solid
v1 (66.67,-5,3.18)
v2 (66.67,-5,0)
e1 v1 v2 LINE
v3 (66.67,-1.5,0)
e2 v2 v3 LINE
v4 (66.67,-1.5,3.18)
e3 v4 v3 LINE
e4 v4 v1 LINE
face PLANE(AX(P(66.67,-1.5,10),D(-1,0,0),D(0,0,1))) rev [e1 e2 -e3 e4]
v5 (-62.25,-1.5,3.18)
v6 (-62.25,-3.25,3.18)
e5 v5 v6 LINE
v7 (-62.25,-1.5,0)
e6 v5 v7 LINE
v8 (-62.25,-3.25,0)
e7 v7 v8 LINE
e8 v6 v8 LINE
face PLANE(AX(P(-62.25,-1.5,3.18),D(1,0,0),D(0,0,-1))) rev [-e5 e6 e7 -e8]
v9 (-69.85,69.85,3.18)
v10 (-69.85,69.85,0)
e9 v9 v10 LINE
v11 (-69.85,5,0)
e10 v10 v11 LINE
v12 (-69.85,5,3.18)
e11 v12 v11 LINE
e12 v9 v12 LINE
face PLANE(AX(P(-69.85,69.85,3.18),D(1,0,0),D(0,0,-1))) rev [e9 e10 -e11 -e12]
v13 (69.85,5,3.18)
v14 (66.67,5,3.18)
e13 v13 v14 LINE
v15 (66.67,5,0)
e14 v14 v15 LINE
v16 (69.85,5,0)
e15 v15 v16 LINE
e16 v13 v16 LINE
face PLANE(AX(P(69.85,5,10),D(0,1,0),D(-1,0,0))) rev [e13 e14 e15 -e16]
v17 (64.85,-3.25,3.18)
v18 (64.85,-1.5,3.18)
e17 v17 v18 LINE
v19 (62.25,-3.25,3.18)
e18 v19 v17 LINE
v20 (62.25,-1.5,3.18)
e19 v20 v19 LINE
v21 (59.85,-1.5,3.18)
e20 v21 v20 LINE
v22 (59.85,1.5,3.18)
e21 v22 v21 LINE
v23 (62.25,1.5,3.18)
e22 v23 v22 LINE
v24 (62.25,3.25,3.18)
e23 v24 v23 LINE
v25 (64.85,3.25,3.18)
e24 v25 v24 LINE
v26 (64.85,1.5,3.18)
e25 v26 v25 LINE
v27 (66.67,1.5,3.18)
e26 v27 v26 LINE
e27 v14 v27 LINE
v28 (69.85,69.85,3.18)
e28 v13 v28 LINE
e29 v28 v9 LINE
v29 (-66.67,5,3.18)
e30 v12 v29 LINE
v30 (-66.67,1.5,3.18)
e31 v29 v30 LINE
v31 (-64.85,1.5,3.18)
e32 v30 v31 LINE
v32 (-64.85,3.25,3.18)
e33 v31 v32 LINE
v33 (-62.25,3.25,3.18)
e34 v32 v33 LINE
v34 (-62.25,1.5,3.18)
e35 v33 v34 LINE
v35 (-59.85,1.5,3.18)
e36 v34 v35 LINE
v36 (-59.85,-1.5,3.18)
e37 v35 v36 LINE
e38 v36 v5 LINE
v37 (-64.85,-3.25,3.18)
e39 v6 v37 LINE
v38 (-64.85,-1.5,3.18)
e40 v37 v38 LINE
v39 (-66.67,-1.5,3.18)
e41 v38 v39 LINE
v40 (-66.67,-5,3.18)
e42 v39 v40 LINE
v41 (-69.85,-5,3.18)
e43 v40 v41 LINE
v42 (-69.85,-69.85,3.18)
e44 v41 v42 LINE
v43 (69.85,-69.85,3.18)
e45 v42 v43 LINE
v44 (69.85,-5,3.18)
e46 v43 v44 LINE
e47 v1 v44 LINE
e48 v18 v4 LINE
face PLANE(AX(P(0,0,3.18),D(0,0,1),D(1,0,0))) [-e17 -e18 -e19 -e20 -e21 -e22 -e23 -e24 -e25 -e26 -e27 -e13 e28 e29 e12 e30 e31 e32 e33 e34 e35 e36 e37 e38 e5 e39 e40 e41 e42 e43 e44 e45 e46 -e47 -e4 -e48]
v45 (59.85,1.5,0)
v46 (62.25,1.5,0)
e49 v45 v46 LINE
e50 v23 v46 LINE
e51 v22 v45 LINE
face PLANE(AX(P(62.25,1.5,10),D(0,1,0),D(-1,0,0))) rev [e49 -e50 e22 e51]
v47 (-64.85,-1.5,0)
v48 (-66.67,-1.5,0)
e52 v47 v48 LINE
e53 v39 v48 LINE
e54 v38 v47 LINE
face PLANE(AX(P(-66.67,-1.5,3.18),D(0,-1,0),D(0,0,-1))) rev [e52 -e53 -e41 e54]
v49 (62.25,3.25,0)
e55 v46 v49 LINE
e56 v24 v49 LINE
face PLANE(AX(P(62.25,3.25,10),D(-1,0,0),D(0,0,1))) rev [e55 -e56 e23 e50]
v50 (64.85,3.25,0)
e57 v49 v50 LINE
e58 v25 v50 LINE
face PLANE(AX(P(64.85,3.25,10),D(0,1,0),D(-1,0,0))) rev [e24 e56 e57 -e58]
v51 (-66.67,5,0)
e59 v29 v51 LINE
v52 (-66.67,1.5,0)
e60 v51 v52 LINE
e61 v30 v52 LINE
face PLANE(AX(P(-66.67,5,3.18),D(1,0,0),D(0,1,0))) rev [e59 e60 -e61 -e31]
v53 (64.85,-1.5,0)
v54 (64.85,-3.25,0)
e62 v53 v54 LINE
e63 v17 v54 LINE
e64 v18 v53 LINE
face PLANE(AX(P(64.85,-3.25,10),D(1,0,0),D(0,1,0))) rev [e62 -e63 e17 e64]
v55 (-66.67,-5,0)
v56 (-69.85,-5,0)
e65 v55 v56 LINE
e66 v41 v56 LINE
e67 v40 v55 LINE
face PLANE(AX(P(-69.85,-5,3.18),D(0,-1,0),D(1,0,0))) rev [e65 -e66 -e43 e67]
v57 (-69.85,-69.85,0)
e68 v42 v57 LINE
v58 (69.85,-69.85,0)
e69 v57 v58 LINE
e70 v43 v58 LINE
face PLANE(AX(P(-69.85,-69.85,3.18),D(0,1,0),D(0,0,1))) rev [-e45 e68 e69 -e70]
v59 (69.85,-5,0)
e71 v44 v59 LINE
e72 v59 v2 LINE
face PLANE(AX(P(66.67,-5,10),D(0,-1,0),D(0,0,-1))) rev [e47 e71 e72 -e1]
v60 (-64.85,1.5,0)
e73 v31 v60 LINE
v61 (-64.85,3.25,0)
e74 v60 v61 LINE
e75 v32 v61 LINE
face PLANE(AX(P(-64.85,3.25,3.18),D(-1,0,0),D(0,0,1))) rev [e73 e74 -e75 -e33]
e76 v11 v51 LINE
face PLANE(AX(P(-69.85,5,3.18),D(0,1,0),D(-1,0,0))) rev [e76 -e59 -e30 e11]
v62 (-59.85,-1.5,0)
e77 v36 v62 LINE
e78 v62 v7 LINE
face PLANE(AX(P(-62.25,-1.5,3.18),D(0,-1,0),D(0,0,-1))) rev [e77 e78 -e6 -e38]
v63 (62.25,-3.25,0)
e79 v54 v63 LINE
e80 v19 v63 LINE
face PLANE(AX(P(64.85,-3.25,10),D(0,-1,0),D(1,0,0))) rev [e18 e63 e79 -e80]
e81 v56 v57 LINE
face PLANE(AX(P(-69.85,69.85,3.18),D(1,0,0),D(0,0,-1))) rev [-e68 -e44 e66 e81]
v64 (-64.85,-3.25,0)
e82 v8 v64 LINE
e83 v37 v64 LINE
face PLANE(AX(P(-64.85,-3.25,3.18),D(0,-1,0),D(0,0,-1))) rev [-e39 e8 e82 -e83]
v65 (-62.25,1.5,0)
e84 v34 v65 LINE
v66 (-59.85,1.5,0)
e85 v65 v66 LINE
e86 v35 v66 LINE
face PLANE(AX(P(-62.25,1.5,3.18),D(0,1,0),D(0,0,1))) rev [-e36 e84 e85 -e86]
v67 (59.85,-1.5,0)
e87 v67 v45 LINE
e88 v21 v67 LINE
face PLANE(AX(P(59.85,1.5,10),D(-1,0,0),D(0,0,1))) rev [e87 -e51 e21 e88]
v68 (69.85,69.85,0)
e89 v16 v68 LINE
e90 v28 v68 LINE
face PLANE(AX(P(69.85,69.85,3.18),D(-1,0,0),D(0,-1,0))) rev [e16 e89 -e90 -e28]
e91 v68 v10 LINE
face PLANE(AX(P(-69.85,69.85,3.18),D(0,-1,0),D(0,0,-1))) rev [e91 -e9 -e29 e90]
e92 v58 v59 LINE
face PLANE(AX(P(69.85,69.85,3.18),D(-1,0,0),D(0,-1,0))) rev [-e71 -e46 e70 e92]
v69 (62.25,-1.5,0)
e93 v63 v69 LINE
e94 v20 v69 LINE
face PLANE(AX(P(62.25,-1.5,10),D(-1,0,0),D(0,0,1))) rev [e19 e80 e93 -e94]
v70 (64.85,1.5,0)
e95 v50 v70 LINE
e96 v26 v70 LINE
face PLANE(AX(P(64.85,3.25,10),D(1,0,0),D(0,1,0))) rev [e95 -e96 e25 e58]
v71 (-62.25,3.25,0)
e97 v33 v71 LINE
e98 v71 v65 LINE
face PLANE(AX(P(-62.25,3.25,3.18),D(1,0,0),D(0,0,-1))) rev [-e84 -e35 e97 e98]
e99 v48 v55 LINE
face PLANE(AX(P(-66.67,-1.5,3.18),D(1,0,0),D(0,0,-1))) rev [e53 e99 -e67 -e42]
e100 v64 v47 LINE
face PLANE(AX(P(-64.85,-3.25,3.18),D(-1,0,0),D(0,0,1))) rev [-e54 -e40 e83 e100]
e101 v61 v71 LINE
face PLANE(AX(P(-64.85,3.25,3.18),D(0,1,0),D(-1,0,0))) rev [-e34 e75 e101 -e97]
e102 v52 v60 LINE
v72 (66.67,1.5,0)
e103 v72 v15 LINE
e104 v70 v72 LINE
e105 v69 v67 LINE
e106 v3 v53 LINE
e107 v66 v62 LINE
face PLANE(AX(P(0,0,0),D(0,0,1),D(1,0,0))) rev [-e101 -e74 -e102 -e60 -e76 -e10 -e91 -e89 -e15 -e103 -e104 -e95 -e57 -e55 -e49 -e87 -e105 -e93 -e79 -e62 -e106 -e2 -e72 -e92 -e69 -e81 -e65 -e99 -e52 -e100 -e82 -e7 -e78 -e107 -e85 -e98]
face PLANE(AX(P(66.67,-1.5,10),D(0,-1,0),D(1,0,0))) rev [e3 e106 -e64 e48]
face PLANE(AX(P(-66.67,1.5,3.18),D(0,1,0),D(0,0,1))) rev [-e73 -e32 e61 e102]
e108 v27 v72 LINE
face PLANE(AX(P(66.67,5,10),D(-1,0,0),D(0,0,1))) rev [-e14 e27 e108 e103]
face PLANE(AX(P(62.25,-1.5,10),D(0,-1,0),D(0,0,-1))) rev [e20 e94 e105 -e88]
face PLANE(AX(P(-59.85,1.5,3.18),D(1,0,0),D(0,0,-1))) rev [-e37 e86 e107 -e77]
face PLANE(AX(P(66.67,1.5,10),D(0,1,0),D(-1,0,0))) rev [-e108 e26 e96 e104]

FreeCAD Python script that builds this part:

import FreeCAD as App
import Part
import Sketcher
Q = App.Units.Quantity

doc = App.newDocument("Part")
body = doc.addObject("PartDesign::Body", "Body")

sketch1 = body.newObject("Sketcher::SketchObject", "Sketch")
sketch1.AttachmentSupport = (doc.getObject("XY_Plane"), [""])
sketch1.MapMode = "FlatFace"
sketch1.addGeometry(Part.LineSegment(App.Vector(-69.85, 69.85, 0), App.Vector(-69.85, -69.85, 0)), False)
sketch1.addGeometry(Part.LineSegment(App.Vector(-69.85, -69.85, 0), App.Vector(69.85, -69.85, 0)), False)
sketch1.addGeometry(Part.LineSegment(App.Vector(69.85, -69.85, 0), App.Vector(69.85, 69.85, 0)), False)
sketch1.addGeometry(Part.LineSegment(App.Vector(69.85, 69.85, 0), App.Vector(-69.85, 69.85, 0)), False)
sketch1.addConstraint(Sketcher.Constraint("Coincident", 0, 2, 1, 1))
sketch1.addConstraint(Sketcher.Constraint("Coincident", 1, 2, 2, 1))
sketch1.addConstraint(Sketcher.Constraint("Coincident", 2, 2, 3, 1))
sketch1.addConstraint(Sketcher.Constraint("Coincident", 3, 2, 0, 1))
sketch1.addConstraint(Sketcher.Constraint("Vertical", 0))
sketch1.addConstraint(Sketcher.Constraint("Horizontal", 1))
sketch1.addConstraint(Sketcher.Constraint("Vertical", 2))
sketch1.addConstraint(Sketcher.Constraint("Horizontal", 3))
sketch1.addConstraint(Sketcher.Constraint("Symmetric", 0, 2, 2, 2, -1, 1))
sketch1.addConstraint(Sketcher.Constraint("Equal", 3, 0))
sketch1.addConstraint(Sketcher.Constraint("DistanceX", 1, 1, 1, 2, Q("139.7 mm")))
pad1 = body.newObject("PartDesign::Pad", "Pad")
pad1.Profile = sketch1
pad1.Length = 3.18

sketch2 = body.newObject("Sketcher::SketchObject", "Sketch001")
sketch2.AttachmentSupport = (doc.getObject("XY_Plane"), [""])
sketch2.MapMode = "FlatFace"
sketch2.addGeometry(Part.LineSegment(App.Vector(-66.67, -1.5, 0), App.Vector(-66.67, -5, 0)), False)
sketch2.addGeometry(Part.LineSegment(App.Vector(-66.67, -5, 0), App.Vector(-69.85, -5, 0)), False)
sketch2.addGeometry(Part.LineSegment(App.Vector(-69.85, -5, 0), App.Vector(-69.85, 5, 0)), False)
sketch2.addGeometry(Part.LineSegment(App.Vector(-69.85, 5, 0), App.Vector(-66.67, 5, 0)), False)
sketch2.addGeometry(Part.LineSegment(App.Vector(-66.67, 5, 0), App.Vector(-66.67, 1.5, 0)), False)
sketch2.addGeometry(Part.LineSegment(App.Vector(-66.67, 1.5, 0), App.Vector(-64.85, 1.5, 0)), False)
sketch2.addGeometry(Part.LineSegment(App.Vector(-64.85, 1.5, 0), App.Vector(-64.85, 3.25, 0)), False)
sketch2.addGeometry(Part.LineSegment(App.Vector(-64.85, 3.25, 0), App.Vector(-62.25, 3.25, 0)), False)
sketch2.addGeometry(Part.LineSegment(App.Vector(-62.25, 3.25, 0), App.Vector(-62.25, 1.5, 0)), False)
sketch2.addGeometry(Part.LineSegment(App.Vector(-62.25, 1.5, 0), App.Vector(-59.85, 1.5, 0)), False)
sketch2.addGeometry(Part.LineSegment(App.Vector(-59.85, 1.5, 0), App.Vector(-59.85, -1.5, 0)), False)
sketch2.addGeometry(Part.LineSegment(App.Vector(-59.85, -1.5, 0), App.Vector(-62.25, -1.5, 0)), False)
sketch2.addGeometry(Part.LineSegment(App.Vector(-62.25, -1.5, 0), App.Vector(-62.25, -3.25, 0)), False)
sketch2.addGeometry(Part.LineSegment(App.Vector(-62.25, -3.25, 0), App.Vector(-64.85, -3.25, 0)), False)
sketch2.addGeometry(Part.LineSegment(App.Vector(-64.85, -3.25, 0), App.Vector(-64.85, -1.5, 0)), False)
sketch2.addGeometry(Part.LineSegment(App.Vector(-64.85, -1.5, 0), App.Vector(-66.67, -1.5, 0)), False)
sketch2.addConstraint(Sketcher.Constraint("Coincident", 0, 2, 1, 1))
sketch2.addConstraint(Sketcher.Constraint("Coincident", 1, 2, 2, 1))
sketch2.addConstraint(Sketcher.Constraint("Coincident", 2, 2, 3, 1))
sketch2.addConstraint(Sketcher.Constraint("Coincident", 3, 2, 4, 1))
sketch2.addConstraint(Sketcher.Constraint("Coincident", 4, 2, 5, 1))
sketch2.addConstraint(Sketcher.Constraint("Coincident", 5, 2, 6, 1))
sketch2.addConstraint(Sketcher.Constraint("Coincident", 6, 2, 7, 1))
sketch2.addConstraint(Sketcher.Constraint("Coincident", 7, 2, 8, 1))
sketch2.addConstraint(Sketcher.Constraint("Coincident", 8, 2, 9, 1))
sketch2.addConstraint(Sketcher.Constraint("Coincident", 9, 2, 10, 1))
sketch2.addConstraint(Sketcher.Constraint("Coincident", 10, 2, 11, 1))
sketch2.addConstraint(Sketcher.Constraint("Coincident", 11, 2, 12, 1))
sketch2.addConstraint(Sketcher.Constraint("Coincident", 12, 2, 13, 1))
sketch2.addConstraint(Sketcher.Constraint("Coincident", 13, 2, 14, 1))
sketch2.addConstraint(Sketcher.Constraint("Coincident", 14, 2, 15, 1))
sketch2.addConstraint(Sketcher.Constraint("Coincident", 15, 2, 0, 1))
sketch2.addConstraint(Sketcher.Constraint("Vertical", 0))
sketch2.addConstraint(Sketcher.Constraint("Horizontal", 1))
sketch2.addConstraint(Sketcher.Constraint("Vertical", 2))
sketch2.addConstraint(Sketcher.Constraint("Horizontal", 3))
sketch2.addConstraint(Sketcher.Constraint("Vertical", 4))
sketch2.addConstraint(Sketcher.Constraint("Horizontal", 5))
sketch2.addConstraint(Sketcher.Constraint("Vertical", 6))
sketch2.addConstraint(Sketcher.Constraint("Horizontal", 7))
sketch2.addConstraint(Sketcher.Constraint("Vertical", 8))
sketch2.addConstraint(Sketcher.Constraint("Horizontal", 9))
sketch2.addConstraint(Sketcher.Constraint("Vertical", 10))
sketch2.addConstraint(Sketcher.Constraint("Horizontal", 11))
sketch2.addConstraint(Sketcher.Constraint("Vertical", 12))
sketch2.addConstraint(Sketcher.Constraint("Horizontal", 13))
sketch2.addConstraint(Sketcher.Constraint("Vertical", 14))
sketch2.addConstraint(Sketcher.Constraint("Horizontal", 15))
sketch2.addConstraint(Sketcher.Constraint("Symmetric", 0, 2, 3, 2, -1))
sketch2.addConstraint(Sketcher.Constraint("Symmetric", 8, 2, 11, 2, -1))
sketch2.addConstraint(Sketcher.Constraint("Symmetric", 6, 2, 13, 2, -1))
sketch2.addConstraint(Sketcher.Constraint("Horizontal", 5, 2, 8, 2))
sketch2.addConstraint(Sketcher.Constraint("Horizontal", 11, 2, 14, 2))
sketch2.addConstraint(Sketcher.Constraint("DistanceY", 2, 1, 2, 2, Q("10 mm")))
sketch2.addConstraint(Sketcher.Constraint("DistanceY", 10, 2, 10, 1, Q("3 mm")))
sketch2.addConstraint(Sketcher.Constraint("DistanceX", 7, 1, 7, 2, Q("2.6 mm")))
sketch2.addConstraint(Sketcher.Constraint("DistanceX", 9, 1, 9, 2, Q("2.4 mm")))
sketch2.addConstraint(Sketcher.Constraint("DistanceX", 2, 2, 5, 2, Q("5 mm")))
sketch2.addConstraint(Sketcher.Constraint("DistanceX", 1, 2, 1, 1, Q("3.18 mm")))
sketch2.addConstraint(Sketcher.Constraint("DistanceY", 6, 1, 6, 2, Q("1.75 mm")))
sketch2.addConstraint(Sketcher.Constraint("DistanceX", 0, 2, -1, 1, Q("66.67 mm")))
pocket1 = body.newObject("PartDesign::Pocket", "Pocket")
pocket1.Profile = sketch2
pocket1.Type = "ThroughAll"
pocket1.Reversed = True

sketch3 = body.newObject("Sketcher::SketchObject", "Sketch002")
sketch3.AttachmentSupport = (doc.getObject("XY_Plane"), [""])
sketch3.MapMode = "FlatFace"
sketch3.addGeometry(Part.LineSegment(App.Vector(69.85, -5, 0), App.Vector(66.67, -5, 0)), False)
sketch3.addGeometry(Part.LineSegment(App.Vector(66.67, -5, 0), App.Vector(66.67, -1.5, 0)), False)
sketch3.addGeometry(Part.LineSegment(App.Vector(66.67, -1.5, 0), App.Vector(64.85, -1.5, 0)), False)
sketch3.addGeometry(Part.LineSegment(App.Vector(64.85, -1.5, 0), App.Vector(64.85, -3.25, 0)), False)
sketch3.addGeometry(Part.LineSegment(App.Vector(64.85, -3.25, 0), App.Vector(62.25, -3.25, 0)), False)
sketch3.addGeometry(Part.LineSegment(App.Vector(62.25, -3.25, 0), App.Vector(62.25, -1.5, 0)), False)
sketch3.addGeometry(Part.LineSegment(App.Vector(62.25, -1.5, 0), App.Vector(59.85, -1.5, 0)), False)
sketch3.addGeometry(Part.LineSegment(App.Vector(59.85, -1.5, 0), App.Vector(59.85, 1.5, 0)), False)
sketch3.addGeometry(Part.LineSegment(App.Vector(59.85, 1.5, 0), App.Vector(62.25, 1.5, 0)), False)
sketch3.addGeometry(Part.LineSegment(App.Vector(62.25, 1.5, 0), App.Vector(62.25, 3.25, 0)), False)
sketch3.addGeometry(Part.LineSegment(App.Vector(62.25, 3.25, 0), App.Vector(64.85, 3.25, 0)), False)
sketch3.addGeometry(Part.LineSegment(App.Vector(64.85, 3.25, 0), App.Vector(64.85, 1.5, 0)), False)
sketch3.addGeometry(Part.LineSegment(App.Vector(64.85, 1.5, 0), App.Vector(66.67, 1.5, 0)), False)
sketch3.addGeometry(Part.LineSegment(App.Vector(66.67, 1.5, 0), App.Vector(66.67, 5, 0)), False)
sketch3.addGeometry(Part.LineSegment(App.Vector(66.67, 5, 0), App.Vector(69.85, 5, 0)), False)
sketch3.addGeometry(Part.LineSegment(App.Vector(69.85, 5, 0), App.Vector(69.85, -5, 0)), False)
sketch3.addConstraint(Sketcher.Constraint("Coincident", 0, 2, 1, 1))
sketch3.addConstraint(Sketcher.Constraint("Coincident", 1, 2, 2, 1))
sketch3.addConstraint(Sketcher.Constraint("Coincident", 2, 2, 3, 1))
sketch3.addConstraint(Sketcher.Constraint("Coincident", 3, 2, 4, 1))
sketch3.addConstraint(Sketcher.Constraint("Coincident", 4, 2, 5, 1))
sketch3.addConstraint(Sketcher.Constraint("Coincident", 5, 2, 6, 1))
sketch3.addConstraint(Sketcher.Constraint("Coincident", 6, 2, 7, 1))
sketch3.addConstraint(Sketcher.Constraint("Coincident", 7, 2, 8, 1))
sketch3.addConstraint(Sketcher.Constraint("Coincident", 8, 2, 9, 1))
sketch3.addConstraint(Sketcher.Constraint("Coincident", 9, 2, 10, 1))
sketch3.addConstraint(Sketcher.Constraint("Coincident", 10, 2, 11, 1))
sketch3.addConstraint(Sketcher.Constraint("Coincident", 11, 2, 12, 1))
sketch3.addConstraint(Sketcher.Constraint("Coincident", 12, 2, 13, 1))
sketch3.addConstraint(Sketcher.Constraint("Coincident", 13, 2, 14, 1))
sketch3.addConstraint(Sketcher.Constraint("Coincident", 14, 2, 15, 1))
sketch3.addConstraint(Sketcher.Constraint("Coincident", 15, 2, 0, 1))
sketch3.addConstraint(Sketcher.Constraint("Horizontal", 0))
sketch3.addConstraint(Sketcher.Constraint("Vertical", 1))
sketch3.addConstraint(Sketcher.Constraint("Horizontal", 2))
sketch3.addConstraint(Sketcher.Constraint("Vertical", 3))
sketch3.addConstraint(Sketcher.Constraint("Horizontal", 4))
sketch3.addConstraint(Sketcher.Constraint("Vertical", 5))
sketch3.addConstraint(Sketcher.Constraint("Horizontal", 6))
sketch3.addConstraint(Sketcher.Constraint("Vertical", 7))
sketch3.addConstraint(Sketcher.Constraint("Horizontal", 8))
sketch3.addConstraint(Sketcher.Constraint("Vertical", 9))
sketch3.addConstraint(Sketcher.Constraint("Horizontal", 10))
sketch3.addConstraint(Sketcher.Constraint("Vertical", 11))
sketch3.addConstraint(Sketcher.Constraint("Horizontal", 12))
sketch3.addConstraint(Sketcher.Constraint("Vertical", 13))
sketch3.addConstraint(Sketcher.Constraint("Horizontal", 14))
sketch3.addConstraint(Sketcher.Constraint("Vertical", 15))
sketch3.addConstraint(Sketcher.Constraint("Symmetric", 5, 2, 8, 2, -1))
sketch3.addConstraint(Sketcher.Constraint("Symmetric", 3, 2, 10, 2, -1))
sketch3.addConstraint(Sketcher.Constraint("Symmetric", 1, 2, 12, 2, -1))
sketch3.addConstraint(Sketcher.Constraint("Horizontal", 2, 2, 5, 2))
sketch3.addConstraint(Sketcher.Constraint("Equal", 1, 13))
sketch3.addConstraint(Sketcher.Constraint("DistanceY", 7, 1, 7, 2, Q("3 mm")))
sketch3.addConstraint(Sketcher.Constraint("DistanceY", 15, 2, 15, 1, Q("10 mm")))
sketch3.addConstraint(Sketcher.Constraint("DistanceX", 4, 2, 4, 1, Q("2.6 mm")))
sketch3.addConstraint(Sketcher.Constraint("DistanceX", 6, 2, 6, 1, Q("2.4 mm")))
sketch3.addConstraint(Sketcher.Constraint("DistanceX", 10, 2, 14, 2, Q("5 mm")))
sketch3.addConstraint(Sketcher.Constraint("DistanceX", 0, 2, 0, 1, Q("3.18 mm")))
sketch3.addConstraint(Sketcher.Constraint("DistanceY", 3, 2, 3, 1, Q("1.75 mm")))
sketch3.addConstraint(Sketcher.Constraint("DistanceX", -1, 1, 0, 2, Q("66.67 mm")))
pocket2 = body.newObject("PartDesign::Pocket", "Pocket001")
pocket2.Profile = sketch3
pocket2.Length = 10
pocket2.Reversed = True

doc.recompute()
